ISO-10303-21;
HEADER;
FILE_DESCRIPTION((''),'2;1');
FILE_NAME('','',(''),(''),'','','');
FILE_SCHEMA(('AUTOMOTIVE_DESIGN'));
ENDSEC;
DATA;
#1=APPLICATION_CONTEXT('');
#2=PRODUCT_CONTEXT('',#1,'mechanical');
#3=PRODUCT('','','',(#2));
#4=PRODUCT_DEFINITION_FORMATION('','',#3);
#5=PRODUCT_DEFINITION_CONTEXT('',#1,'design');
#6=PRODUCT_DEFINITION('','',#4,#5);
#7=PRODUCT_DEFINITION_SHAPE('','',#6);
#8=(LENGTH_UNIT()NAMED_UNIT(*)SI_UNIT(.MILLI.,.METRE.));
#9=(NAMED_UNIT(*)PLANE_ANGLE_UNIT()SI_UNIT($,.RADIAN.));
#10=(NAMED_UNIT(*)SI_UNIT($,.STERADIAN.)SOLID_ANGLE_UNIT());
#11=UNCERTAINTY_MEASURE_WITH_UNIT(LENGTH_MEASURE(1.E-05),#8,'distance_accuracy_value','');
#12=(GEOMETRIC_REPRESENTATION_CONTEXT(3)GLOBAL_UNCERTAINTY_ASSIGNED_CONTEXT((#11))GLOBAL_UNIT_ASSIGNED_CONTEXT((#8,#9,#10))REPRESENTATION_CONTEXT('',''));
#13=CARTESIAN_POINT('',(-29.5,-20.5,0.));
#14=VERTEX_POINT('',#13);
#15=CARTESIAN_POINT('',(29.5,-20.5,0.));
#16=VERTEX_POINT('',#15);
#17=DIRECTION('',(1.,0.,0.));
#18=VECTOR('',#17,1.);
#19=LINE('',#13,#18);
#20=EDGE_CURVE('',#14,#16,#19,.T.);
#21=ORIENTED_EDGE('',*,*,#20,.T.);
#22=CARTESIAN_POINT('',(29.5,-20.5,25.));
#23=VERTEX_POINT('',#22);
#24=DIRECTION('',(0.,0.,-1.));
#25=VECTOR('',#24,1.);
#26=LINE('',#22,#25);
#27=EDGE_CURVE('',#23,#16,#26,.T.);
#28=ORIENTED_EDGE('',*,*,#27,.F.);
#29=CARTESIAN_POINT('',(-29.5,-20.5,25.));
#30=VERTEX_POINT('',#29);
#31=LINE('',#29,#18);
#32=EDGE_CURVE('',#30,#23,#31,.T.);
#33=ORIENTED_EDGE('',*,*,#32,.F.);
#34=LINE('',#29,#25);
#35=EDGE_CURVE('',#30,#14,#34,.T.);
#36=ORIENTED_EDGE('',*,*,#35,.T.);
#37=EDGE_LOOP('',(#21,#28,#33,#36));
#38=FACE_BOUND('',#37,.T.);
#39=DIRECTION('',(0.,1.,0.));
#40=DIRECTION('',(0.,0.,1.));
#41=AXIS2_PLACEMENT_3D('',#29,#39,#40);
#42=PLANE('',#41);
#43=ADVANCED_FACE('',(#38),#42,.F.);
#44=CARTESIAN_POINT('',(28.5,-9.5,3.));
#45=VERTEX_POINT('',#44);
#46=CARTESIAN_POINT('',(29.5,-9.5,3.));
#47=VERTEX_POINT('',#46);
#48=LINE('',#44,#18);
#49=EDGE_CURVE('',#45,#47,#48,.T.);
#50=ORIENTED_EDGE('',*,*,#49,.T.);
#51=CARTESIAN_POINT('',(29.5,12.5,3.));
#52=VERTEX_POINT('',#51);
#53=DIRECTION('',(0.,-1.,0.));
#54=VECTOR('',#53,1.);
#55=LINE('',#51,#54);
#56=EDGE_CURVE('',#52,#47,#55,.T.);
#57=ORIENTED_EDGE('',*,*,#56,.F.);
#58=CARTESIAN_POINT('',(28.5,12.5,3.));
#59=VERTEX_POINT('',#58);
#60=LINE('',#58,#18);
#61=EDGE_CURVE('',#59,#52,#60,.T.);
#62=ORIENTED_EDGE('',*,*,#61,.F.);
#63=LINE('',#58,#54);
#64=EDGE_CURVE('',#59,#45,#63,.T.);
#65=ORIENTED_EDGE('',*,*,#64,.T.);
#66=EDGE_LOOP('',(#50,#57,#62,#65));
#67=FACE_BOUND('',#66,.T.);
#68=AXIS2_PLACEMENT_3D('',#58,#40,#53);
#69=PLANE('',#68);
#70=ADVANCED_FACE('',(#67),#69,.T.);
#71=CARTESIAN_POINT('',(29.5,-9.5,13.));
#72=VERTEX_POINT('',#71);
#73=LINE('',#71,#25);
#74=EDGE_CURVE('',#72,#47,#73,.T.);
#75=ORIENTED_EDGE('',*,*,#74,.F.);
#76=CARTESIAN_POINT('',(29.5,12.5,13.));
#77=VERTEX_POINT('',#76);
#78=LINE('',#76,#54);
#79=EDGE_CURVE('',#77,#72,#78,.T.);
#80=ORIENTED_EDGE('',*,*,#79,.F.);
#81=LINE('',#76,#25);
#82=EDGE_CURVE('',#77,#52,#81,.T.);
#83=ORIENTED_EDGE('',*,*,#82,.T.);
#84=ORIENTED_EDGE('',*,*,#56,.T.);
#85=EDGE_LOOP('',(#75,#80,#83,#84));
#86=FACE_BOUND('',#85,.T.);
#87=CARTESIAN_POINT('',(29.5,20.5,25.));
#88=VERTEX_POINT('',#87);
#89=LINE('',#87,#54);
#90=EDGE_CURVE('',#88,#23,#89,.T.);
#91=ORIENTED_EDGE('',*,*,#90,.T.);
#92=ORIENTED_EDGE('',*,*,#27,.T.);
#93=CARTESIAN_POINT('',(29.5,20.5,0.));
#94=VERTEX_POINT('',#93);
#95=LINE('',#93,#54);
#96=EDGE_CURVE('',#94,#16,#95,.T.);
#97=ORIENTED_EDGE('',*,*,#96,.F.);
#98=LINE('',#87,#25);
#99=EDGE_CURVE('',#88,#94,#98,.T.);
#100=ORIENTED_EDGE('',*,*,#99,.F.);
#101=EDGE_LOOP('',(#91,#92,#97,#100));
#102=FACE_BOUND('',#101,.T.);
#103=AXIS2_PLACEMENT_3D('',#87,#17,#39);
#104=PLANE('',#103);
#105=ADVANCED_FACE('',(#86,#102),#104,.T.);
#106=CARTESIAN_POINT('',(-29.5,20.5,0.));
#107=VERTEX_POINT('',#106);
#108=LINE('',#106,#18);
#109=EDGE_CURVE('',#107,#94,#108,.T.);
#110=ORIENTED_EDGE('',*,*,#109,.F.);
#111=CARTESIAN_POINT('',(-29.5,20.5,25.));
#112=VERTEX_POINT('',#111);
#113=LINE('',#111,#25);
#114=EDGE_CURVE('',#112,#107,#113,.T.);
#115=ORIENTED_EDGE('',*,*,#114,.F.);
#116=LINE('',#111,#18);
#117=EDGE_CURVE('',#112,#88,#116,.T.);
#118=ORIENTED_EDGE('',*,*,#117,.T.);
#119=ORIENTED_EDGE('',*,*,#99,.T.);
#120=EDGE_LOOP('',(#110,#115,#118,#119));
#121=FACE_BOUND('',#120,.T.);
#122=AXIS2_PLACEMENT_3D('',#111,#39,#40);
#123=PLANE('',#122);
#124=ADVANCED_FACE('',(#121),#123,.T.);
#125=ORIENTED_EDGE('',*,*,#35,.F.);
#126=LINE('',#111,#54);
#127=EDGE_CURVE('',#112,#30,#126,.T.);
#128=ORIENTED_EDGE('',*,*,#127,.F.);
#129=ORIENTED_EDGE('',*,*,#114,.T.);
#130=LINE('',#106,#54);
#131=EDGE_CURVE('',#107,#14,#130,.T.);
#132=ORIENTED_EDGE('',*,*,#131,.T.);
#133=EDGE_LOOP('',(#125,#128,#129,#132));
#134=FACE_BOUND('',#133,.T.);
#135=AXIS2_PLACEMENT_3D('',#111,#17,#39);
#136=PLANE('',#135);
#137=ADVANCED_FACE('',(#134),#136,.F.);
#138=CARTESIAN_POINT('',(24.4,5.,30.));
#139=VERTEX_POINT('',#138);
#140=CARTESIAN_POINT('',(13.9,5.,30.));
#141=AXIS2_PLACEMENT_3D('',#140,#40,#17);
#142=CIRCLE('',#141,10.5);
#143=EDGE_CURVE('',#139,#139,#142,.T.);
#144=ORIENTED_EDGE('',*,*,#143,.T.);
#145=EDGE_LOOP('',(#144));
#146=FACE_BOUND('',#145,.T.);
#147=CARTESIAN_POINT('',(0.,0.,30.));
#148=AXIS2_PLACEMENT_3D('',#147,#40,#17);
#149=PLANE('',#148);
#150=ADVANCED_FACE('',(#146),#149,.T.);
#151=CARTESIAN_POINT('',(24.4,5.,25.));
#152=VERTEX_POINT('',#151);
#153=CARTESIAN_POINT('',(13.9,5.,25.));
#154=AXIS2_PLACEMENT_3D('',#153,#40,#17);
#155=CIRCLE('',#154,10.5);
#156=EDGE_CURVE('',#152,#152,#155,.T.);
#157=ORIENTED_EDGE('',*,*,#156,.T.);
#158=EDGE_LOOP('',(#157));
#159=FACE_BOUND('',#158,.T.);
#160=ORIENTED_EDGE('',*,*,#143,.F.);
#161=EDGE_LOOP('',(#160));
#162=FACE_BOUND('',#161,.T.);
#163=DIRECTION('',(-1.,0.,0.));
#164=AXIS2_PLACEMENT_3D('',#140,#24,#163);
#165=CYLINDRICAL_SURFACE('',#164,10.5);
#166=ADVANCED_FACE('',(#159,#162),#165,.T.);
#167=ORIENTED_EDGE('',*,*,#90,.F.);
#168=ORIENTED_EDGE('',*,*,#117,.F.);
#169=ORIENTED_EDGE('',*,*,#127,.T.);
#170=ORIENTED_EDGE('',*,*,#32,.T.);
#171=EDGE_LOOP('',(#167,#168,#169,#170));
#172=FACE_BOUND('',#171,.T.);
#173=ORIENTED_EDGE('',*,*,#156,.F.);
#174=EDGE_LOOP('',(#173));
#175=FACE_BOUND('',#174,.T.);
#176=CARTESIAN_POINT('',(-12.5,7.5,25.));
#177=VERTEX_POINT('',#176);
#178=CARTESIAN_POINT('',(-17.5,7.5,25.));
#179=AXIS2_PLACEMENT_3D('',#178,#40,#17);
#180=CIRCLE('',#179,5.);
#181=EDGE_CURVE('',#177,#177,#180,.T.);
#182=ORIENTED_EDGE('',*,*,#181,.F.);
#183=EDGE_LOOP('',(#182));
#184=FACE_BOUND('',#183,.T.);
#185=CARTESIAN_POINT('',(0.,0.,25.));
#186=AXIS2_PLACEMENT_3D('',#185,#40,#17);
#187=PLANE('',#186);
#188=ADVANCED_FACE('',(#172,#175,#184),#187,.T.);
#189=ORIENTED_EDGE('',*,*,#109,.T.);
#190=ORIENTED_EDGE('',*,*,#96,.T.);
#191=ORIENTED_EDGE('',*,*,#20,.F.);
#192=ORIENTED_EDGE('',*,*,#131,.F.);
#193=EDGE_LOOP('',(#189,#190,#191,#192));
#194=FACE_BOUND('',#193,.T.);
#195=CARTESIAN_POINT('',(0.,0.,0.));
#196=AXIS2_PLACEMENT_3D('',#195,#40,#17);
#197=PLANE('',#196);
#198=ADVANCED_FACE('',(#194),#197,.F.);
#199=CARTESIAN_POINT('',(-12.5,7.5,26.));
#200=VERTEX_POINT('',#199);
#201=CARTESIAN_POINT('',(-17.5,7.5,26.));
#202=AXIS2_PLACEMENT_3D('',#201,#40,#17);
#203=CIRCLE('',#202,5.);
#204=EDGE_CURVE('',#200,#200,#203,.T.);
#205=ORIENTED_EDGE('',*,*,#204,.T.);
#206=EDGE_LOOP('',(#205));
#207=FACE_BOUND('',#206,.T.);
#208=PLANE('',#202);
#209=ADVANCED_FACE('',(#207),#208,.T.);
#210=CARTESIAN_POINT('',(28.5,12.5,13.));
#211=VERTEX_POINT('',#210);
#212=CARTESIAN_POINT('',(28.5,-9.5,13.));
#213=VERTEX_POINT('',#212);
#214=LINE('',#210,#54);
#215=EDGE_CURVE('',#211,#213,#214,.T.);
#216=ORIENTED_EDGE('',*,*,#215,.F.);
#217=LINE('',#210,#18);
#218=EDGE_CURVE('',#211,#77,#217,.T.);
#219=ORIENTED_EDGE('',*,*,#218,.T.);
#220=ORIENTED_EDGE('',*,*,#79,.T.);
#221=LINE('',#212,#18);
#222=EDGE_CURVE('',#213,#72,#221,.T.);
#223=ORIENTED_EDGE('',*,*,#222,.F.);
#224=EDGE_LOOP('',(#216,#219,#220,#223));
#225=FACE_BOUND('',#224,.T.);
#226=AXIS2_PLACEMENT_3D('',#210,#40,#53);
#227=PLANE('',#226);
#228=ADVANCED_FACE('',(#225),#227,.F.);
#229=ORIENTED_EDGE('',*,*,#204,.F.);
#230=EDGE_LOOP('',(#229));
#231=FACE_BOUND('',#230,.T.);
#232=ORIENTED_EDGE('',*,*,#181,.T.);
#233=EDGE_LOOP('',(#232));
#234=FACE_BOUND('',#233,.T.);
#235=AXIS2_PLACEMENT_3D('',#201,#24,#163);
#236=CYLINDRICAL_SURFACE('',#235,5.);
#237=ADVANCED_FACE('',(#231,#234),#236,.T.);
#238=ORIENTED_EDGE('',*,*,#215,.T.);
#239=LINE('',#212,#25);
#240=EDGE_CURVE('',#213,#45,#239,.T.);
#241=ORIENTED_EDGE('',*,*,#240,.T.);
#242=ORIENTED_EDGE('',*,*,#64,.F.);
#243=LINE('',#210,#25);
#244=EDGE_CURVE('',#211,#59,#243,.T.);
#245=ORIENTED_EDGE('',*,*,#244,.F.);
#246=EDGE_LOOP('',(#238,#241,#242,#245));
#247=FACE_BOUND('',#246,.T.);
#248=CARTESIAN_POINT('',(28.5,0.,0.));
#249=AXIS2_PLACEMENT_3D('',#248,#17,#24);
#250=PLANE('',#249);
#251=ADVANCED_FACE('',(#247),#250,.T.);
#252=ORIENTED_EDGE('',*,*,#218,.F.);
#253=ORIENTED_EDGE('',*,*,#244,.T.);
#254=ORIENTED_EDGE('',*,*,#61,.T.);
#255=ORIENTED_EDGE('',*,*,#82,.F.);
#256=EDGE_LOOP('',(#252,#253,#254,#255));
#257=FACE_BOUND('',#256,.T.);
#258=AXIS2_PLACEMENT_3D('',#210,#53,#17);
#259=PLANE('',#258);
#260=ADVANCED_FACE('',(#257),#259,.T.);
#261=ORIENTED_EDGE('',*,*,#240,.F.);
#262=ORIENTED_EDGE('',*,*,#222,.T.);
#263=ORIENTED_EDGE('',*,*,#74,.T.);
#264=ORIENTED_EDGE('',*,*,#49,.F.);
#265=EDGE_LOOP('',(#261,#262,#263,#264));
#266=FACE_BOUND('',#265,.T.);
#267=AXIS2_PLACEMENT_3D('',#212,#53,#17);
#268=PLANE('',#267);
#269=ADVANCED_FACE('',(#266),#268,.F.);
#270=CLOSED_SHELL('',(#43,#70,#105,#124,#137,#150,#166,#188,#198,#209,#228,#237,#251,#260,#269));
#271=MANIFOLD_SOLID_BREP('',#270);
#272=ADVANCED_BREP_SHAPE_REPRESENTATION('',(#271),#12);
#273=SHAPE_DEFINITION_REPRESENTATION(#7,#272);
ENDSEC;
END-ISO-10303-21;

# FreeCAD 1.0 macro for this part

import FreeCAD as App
import Part
import Sketcher
Q = App.Units.Quantity

doc = App.newDocument("Part")
body = doc.addObject("PartDesign::Body", "Body")

# Sketch on XY plane
sketch1 = body.newObject("Sketcher::SketchObject", "Sketch")
sketch1.AttachmentSupport = (doc.getObject("XY_Plane"), [""])
sketch1.MapMode = "FlatFace"
sketch1.addGeometry([
    Part.LineSegment(App.Vector(-30, 20, 0), App.Vector(-30, -20, 0)),
    Part.LineSegment(App.Vector(-30, -20, 0), App.Vector(30, -20, 0)),
    Part.LineSegment(App.Vector(30, -20, 0), App.Vector(30, 20, 0)),
    Part.LineSegment(App.Vector(30, 20, 0), App.Vector(-30, 20, 0)),
], False)
sketch1.addConstraint([
    Sketcher.Constraint("Coincident", 0, 2, 1, 1),
    Sketcher.Constraint("Coincident", 1, 2, 2, 1),
    Sketcher.Constraint("Coincident", 2, 2, 3, 1),
    Sketcher.Constraint("Coincident", 3, 2, 0, 1),
    Sketcher.Constraint("Vertical", 0),
    Sketcher.Constraint("Horizontal", 1),
    Sketcher.Constraint("Vertical", 2),
    Sketcher.Constraint("Horizontal", 3),
    Sketcher.Constraint("Symmetric", 0, 2, 2, 2, -1, 1),
    Sketcher.Constraint("DistanceX", 1, 1, 1, 2, Q("59 mm")),
    Sketcher.Constraint("DistanceY", 0, 2, 0, 1, Q("41 mm")),
])
pad1 = body.newObject("PartDesign::Pad", "Pad")
pad1.Profile = sketch1
pad1.Length = 25

# Sketch on XY plane
sketch2 = body.newObject("Sketcher::SketchObject", "Sketch001")
sketch2.AttachmentSupport = (doc.getObject("XY_Plane"), [""])
sketch2.MapMode = "FlatFace"
sketch2.AttachmentOffset = App.Placement(App.Vector(0, 0, 25), App.Rotation())
sketch2.addGeometry(Part.Circle(App.Vector(14, 5, 0), App.Vector(0, 0, 1), 10), False)
sketch2.addConstraint([
    Sketcher.Constraint("Diameter", 0, Q("21 mm")),
    Sketcher.Constraint("DistanceY", -1, 1, 0, 3, Q("5 mm")),
    Sketcher.Constraint("DistanceX", -1, 1, 0, 3, Q("13.9 mm")),
])
pad2 = body.newObject("PartDesign::Pad", "Pad001")
pad2.Profile = sketch2
pad2.Length = 5

# Sketch on XY plane
sketch3 = body.newObject("Sketcher::SketchObject", "Sketch002")
sketch3.AttachmentSupport = (doc.getObject("XY_Plane"), [""])
sketch3.MapMode = "FlatFace"
sketch3.AttachmentOffset = App.Placement(App.Vector(0, 0, 25), App.Rotation())
sketch3.addGeometry(Part.Circle(App.Vector(-18, 8, 0), App.Vector(0, 0, 1), 5), False)
sketch3.addConstraint([
    Sketcher.Constraint("Diameter", 0, Q("10 mm")),
    Sketcher.Constraint("DistanceX", 0, 3, -1, 1, Q("17.5 mm")),
    Sketcher.Constraint("DistanceY", -1, 1, 0, 3, Q("7.5 mm")),
])
pad3 = body.newObject("PartDesign::Pad", "Pad002")
pad3.Profile = sketch3
pad3.Length = 1

# Sketch on YZ plane
sketch4 = body.newObject("Sketcher::SketchObject", "Sketch003")
sketch4.AttachmentSupport = (doc.getObject("YZ_Plane"), [""])
sketch4.MapMode = "FlatFace"
sketch4.AttachmentOffset = App.Placement(App.Vector(0, 0, 29.5), App.Rotation())
sketch4.addGeometry([
    Part.LineSegment(App.Vector(12, 13, 0), App.Vector(-10, 13, 0)),
    Part.LineSegment(App.Vector(-10, 13, 0), App.Vector(-10, 3, 0)),
    Part.LineSegment(App.Vector(-10, 3, 0), App.Vector(12, 3, 0)),
    Part.LineSegment(App.Vector(12, 3, 0), App.Vector(12, 13, 0)),
], False)
sketch4.addConstraint([
    Sketcher.Constraint("Coincident", 0, 2, 1, 1),
    Sketcher.Constraint("Coincident", 1, 2, 2, 1),
    Sketcher.Constraint("Coincident", 2, 2, 3, 1),
    Sketcher.Constraint("Coincident", 3, 2, 0, 1),
    Sketcher.Constraint("Horizontal", 0),
    Sketcher.Constraint("Vertical", 1),
    Sketcher.Constraint("Horizontal", 2),
    Sketcher.Constraint("Vertical", 3),
    Sketcher.Constraint("DistanceX", 0, 2, 0, 1, Q("22 mm")),
    Sketcher.Constraint("DistanceY", 1, 2, 1, 1, Q("10 mm")),
    Sketcher.Constraint("DistanceY", -1, 1, 0, 2, Q("13 mm")),
    Sketcher.Constraint("DistanceX", 0, 2, -1, 1, Q("9.5 mm")),
])
pocket1 = body.newObject("PartDesign::Pocket", "Pocket")
pocket1.Profile = sketch4
pocket1.Length = 1

doc.recompute()
